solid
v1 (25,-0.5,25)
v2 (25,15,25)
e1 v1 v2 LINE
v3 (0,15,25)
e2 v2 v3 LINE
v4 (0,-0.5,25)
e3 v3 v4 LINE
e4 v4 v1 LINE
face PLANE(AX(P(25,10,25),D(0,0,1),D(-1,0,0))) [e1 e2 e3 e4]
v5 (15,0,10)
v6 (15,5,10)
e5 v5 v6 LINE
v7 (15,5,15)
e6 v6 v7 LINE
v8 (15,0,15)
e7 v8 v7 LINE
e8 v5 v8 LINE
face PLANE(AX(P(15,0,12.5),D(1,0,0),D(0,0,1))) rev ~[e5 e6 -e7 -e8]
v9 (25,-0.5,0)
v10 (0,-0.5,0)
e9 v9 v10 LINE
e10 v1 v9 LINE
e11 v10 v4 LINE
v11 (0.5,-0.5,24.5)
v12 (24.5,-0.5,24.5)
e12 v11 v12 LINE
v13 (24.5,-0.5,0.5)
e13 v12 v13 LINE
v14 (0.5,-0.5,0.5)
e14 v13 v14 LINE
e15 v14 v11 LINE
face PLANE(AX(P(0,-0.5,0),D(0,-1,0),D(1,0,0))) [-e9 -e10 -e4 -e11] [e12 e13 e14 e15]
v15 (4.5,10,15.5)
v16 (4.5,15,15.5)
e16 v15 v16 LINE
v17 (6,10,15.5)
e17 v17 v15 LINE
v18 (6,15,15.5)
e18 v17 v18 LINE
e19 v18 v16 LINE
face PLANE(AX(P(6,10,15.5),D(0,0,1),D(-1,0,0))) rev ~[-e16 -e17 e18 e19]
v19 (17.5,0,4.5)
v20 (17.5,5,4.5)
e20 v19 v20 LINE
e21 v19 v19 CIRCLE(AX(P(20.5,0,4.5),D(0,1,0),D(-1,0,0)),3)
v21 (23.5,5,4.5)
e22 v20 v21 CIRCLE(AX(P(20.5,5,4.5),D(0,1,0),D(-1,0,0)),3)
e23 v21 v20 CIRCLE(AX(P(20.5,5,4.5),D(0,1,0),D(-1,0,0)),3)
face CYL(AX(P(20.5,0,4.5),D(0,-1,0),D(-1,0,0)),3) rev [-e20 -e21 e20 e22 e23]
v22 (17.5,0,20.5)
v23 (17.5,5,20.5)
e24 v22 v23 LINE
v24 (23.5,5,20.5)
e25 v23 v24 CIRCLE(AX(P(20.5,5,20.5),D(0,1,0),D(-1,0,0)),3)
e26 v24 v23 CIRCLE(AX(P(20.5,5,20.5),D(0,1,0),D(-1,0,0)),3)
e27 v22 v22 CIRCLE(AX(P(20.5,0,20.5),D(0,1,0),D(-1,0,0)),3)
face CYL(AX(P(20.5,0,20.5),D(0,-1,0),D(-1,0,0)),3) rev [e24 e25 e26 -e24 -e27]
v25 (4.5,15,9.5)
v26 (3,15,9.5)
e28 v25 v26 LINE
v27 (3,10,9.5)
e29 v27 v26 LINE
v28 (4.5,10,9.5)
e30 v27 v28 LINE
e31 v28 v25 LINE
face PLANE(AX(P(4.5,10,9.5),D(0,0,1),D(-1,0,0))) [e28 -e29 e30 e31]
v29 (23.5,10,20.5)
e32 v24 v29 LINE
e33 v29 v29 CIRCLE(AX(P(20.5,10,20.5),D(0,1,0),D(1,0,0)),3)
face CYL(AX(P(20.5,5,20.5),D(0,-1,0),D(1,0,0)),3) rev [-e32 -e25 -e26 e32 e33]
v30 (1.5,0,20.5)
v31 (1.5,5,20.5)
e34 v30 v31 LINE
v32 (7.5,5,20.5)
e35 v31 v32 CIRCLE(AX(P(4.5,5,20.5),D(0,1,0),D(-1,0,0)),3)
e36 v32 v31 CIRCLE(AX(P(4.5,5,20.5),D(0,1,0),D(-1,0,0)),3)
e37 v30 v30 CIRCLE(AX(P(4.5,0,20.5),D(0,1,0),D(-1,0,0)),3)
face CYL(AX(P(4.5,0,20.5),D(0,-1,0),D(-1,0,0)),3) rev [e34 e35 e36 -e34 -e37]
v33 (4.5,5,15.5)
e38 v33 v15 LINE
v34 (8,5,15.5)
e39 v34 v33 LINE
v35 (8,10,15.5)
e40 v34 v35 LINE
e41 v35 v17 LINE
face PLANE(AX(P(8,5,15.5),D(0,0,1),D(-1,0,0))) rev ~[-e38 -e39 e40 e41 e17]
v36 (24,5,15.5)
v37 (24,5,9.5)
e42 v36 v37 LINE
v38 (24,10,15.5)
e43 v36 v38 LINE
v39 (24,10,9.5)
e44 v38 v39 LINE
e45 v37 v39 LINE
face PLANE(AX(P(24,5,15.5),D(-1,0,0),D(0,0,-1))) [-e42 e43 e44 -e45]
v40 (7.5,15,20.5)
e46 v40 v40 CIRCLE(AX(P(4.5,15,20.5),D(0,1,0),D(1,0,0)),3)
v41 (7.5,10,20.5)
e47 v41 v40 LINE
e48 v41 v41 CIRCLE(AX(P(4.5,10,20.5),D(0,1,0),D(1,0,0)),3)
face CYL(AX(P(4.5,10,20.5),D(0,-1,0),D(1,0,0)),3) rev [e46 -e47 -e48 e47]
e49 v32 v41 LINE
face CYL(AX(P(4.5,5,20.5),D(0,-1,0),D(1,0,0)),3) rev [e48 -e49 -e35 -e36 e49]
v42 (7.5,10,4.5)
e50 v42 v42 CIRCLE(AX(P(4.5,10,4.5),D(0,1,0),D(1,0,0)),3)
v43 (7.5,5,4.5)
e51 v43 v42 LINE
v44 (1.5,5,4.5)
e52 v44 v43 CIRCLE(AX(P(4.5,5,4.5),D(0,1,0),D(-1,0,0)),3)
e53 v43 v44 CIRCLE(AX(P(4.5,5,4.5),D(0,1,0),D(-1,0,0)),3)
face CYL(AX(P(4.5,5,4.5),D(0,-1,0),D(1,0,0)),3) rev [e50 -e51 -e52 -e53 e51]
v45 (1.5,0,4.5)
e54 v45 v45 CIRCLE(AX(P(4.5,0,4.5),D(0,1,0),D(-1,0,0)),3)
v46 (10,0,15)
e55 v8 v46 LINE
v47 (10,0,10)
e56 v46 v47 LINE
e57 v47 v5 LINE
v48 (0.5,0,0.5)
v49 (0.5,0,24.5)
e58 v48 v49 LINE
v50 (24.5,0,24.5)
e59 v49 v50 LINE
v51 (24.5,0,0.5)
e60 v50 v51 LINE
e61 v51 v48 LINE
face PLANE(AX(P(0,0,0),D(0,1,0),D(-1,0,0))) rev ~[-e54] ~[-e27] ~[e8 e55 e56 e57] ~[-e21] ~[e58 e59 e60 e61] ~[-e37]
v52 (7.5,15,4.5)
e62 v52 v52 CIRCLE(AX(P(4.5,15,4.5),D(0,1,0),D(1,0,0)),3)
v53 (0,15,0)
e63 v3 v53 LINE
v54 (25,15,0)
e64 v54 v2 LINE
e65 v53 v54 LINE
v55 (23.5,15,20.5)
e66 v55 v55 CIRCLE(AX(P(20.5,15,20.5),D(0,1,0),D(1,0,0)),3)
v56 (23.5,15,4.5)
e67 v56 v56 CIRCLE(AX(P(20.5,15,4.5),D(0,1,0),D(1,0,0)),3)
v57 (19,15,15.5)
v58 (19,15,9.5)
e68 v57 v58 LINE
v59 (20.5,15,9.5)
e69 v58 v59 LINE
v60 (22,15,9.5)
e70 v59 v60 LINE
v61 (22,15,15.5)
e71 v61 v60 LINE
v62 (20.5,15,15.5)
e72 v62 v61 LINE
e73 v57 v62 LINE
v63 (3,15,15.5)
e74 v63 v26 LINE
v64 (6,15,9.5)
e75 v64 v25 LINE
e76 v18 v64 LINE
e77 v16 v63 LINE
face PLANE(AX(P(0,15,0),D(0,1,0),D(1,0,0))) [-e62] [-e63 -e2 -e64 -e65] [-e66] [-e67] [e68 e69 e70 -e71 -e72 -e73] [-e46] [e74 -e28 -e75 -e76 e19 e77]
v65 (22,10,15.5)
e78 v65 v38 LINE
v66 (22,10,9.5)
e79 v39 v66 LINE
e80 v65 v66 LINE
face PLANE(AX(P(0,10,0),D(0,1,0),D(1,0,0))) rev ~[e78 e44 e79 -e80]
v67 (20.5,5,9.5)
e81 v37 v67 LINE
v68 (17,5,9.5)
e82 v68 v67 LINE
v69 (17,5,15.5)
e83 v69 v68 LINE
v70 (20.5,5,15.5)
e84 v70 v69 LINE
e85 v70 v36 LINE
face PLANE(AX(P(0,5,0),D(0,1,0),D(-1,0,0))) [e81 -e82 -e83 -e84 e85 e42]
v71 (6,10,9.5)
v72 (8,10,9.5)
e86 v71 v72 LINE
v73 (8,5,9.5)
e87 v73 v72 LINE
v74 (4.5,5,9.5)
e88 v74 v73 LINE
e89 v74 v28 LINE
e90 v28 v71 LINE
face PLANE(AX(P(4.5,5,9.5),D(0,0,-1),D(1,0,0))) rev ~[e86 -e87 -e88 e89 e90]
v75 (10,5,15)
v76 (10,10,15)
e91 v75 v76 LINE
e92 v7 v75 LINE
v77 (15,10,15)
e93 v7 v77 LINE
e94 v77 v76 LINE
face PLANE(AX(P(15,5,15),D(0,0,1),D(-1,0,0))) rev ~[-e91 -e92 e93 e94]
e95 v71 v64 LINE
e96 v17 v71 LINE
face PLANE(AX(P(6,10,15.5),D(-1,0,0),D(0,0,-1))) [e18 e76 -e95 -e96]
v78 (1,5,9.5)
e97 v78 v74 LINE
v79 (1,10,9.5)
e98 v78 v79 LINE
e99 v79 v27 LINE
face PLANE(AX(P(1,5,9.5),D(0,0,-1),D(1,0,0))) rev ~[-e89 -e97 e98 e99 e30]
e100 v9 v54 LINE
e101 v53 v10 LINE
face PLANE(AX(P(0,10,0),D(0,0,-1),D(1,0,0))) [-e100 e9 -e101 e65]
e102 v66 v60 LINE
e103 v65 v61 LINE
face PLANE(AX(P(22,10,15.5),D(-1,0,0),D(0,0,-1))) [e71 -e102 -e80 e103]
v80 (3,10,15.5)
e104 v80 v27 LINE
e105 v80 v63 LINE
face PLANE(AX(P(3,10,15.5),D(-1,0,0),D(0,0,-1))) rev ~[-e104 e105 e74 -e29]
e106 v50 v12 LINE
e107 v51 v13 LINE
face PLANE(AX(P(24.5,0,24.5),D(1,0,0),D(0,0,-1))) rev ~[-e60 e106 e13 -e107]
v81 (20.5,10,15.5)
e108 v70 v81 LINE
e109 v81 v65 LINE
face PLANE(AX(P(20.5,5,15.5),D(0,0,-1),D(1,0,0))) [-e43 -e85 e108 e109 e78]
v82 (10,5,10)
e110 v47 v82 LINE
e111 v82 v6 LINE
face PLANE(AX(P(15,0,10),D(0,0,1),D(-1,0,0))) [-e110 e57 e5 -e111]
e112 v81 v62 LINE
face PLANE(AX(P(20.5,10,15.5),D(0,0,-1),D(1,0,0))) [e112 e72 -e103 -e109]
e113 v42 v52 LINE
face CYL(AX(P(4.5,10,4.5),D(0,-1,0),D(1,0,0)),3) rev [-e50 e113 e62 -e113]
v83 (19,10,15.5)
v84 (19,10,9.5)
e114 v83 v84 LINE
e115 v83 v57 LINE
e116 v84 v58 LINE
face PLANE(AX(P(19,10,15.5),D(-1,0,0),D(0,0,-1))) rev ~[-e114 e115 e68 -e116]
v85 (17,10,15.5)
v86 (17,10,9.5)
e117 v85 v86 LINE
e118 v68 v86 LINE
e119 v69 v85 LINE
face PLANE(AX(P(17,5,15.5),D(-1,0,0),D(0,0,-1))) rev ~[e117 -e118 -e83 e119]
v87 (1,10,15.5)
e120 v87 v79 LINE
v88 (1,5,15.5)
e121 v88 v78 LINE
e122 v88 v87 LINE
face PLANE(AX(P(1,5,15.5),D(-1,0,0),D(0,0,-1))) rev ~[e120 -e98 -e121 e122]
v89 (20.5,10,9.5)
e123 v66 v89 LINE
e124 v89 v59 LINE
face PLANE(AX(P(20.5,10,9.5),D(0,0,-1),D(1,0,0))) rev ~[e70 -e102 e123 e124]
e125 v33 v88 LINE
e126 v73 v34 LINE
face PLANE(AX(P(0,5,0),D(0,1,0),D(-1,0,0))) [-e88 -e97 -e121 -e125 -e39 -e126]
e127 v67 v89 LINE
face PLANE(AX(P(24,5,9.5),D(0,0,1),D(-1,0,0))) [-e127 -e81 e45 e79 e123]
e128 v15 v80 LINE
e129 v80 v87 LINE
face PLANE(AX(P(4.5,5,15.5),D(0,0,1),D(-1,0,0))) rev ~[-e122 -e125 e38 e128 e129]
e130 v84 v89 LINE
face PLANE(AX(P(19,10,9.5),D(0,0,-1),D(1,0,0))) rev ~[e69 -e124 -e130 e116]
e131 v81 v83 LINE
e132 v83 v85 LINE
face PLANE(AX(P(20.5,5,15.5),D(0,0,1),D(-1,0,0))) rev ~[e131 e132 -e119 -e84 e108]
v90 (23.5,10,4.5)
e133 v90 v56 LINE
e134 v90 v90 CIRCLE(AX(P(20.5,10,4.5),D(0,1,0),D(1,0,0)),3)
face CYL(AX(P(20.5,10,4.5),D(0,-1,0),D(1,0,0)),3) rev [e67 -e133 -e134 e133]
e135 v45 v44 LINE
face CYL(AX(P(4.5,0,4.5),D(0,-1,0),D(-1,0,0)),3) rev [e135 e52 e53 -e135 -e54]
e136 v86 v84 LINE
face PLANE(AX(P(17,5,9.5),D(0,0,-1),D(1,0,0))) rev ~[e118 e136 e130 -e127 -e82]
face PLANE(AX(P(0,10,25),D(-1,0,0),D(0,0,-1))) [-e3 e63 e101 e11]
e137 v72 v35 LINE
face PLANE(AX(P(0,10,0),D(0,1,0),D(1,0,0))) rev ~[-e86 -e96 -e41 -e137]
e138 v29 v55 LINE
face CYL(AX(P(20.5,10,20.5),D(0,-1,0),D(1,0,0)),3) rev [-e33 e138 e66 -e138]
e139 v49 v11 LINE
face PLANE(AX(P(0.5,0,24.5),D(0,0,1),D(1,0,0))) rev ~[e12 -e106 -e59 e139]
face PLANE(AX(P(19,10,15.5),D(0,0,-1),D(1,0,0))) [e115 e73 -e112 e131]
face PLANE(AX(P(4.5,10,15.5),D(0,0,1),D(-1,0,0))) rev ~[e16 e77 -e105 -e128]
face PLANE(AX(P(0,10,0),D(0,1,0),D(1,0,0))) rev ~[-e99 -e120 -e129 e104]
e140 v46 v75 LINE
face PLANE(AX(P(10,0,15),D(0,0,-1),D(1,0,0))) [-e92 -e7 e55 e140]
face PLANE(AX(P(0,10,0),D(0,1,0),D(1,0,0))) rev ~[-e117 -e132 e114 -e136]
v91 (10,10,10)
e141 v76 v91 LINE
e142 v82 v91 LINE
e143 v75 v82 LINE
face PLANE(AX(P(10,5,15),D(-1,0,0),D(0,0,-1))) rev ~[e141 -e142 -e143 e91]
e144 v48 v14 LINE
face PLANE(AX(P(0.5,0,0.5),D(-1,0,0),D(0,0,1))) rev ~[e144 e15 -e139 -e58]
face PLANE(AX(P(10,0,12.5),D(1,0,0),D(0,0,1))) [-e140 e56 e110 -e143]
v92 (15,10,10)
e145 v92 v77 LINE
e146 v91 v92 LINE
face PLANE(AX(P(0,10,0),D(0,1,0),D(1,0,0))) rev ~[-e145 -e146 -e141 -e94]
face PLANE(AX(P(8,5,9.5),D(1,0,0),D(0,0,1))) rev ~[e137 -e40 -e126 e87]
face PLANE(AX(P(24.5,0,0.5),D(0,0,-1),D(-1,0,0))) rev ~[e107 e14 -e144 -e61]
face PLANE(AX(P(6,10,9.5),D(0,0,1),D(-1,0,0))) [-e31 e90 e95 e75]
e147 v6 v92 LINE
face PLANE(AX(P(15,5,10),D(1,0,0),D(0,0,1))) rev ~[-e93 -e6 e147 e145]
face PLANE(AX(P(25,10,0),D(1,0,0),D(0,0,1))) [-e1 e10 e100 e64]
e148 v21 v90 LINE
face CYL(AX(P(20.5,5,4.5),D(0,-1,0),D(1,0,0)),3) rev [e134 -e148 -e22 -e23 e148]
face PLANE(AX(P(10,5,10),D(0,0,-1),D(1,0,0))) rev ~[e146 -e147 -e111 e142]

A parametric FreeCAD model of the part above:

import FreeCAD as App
import Part
import Sketcher
from FreeCAD import Vector


def add_polygon(sketch, points):
    """Adds a closed chain of lines whose ends are joined by coincident constraints."""
    first, n = sketch.GeometryCount, len(points)
    for a, b in zip(points, points[1:] + points[:1]):
        sketch.addGeometry(Part.LineSegment(App.Vector(*a, 0), App.Vector(*b, 0)), False)
    for i in range(n):
        sketch.addConstraint(Sketcher.Constraint("Coincident", first + i, 2, first + (i + 1) % n, 1))

doc = App.newDocument("Part")
body = doc.addObject("PartDesign::Body", "Body")

# Sketch on XZ plane
sketch1 = doc.addObject("Sketcher::SketchObject", "Sketch")
body.addObject(sketch1)
sketch1.AttachmentSupport = (doc.XZ_Plane, [""])
sketch1.MapMode = "FlatFace"
add_polygon(sketch1, [(25, 0), (0, 0), (0, 25), (25, 25)])  # lines 0-3
sketch1.addGeometry(Part.Circle(Vector(20.5, 4.5, 0), Vector(0, 0, 1), 3), False)  # 4
sketch1.addGeometry(Part.Circle(Vector(4.5, 4.5, 0), Vector(0, 0, 1), 3), False)  # 5
sketch1.addGeometry(Part.Circle(Vector(20.5, 20.5, 0), Vector(0, 0, 1), 3), False)  # 6
add_polygon(sketch1, [(10, 15), (10, 10), (15, 10), (15, 15)])  # lines 7-10
sketch1.addGeometry(Part.Circle(Vector(4.5, 20.5, 0), Vector(0, 0, 1), 3), False)  # 11
sketch1.addConstraint(Sketcher.Constraint("Horizontal", 0))
sketch1.addConstraint(Sketcher.Constraint("Vertical", 1))
sketch1.addConstraint(Sketcher.Constraint("Horizontal", 2))
sketch1.addConstraint(Sketcher.Constraint("Vertical", 3))
sketch1.addConstraint(Sketcher.Constraint("Vertical", 7))
sketch1.addConstraint(Sketcher.Constraint("Horizontal", 8))
sketch1.addConstraint(Sketcher.Constraint("Vertical", 9))
sketch1.addConstraint(Sketcher.Constraint("Horizontal", 10))
sketch1.addConstraint(Sketcher.Constraint("Coincident", 0, 2, -1, 1))
sketch1.addConstraint(Sketcher.Constraint("Equal", 4, 5))
sketch1.addConstraint(Sketcher.Constraint("Equal", 5, 6))
sketch1.addConstraint(Sketcher.Constraint("Equal", 6, 11))
sketch1.addConstraint(Sketcher.Constraint("Horizontal", 4, 3, 5, 3))
sketch1.addConstraint(Sketcher.Constraint("Horizontal", 6, 3, 11, 3))
sketch1.addConstraint(Sketcher.Constraint("Vertical", 4, 3, 6, 3))
sketch1.addConstraint(Sketcher.Constraint("Vertical", 5, 3, 11, 3))
sketch1.addConstraint(Sketcher.Constraint("Equal", 2, 1))
sketch1.addConstraint(Sketcher.Constraint("Equal", 10, 7))
sketch1.addConstraint(Sketcher.Constraint("Diameter", 4, 6.0))
sketch1.addConstraint(Sketcher.Constraint("DistanceX", 0, 2, 0, 1, 25.0))
sketch1.addConstraint(Sketcher.Constraint("DistanceX", 8, 1, 8, 2, 5.0))
sketch1.addConstraint(Sketcher.Constraint("DistanceX", -1, 1, 7, 2, 10.0))
sketch1.addConstraint(Sketcher.Constraint("DistanceY", -1, 1, 7, 2, 10.0))
sketch1.addConstraint(Sketcher.Constraint("DistanceX", 5, 3, 4, 3, 16.0))
sketch1.addConstraint(Sketcher.Constraint("DistanceY", 4, 3, 6, 3, 16.0))
sketch1.addConstraint(Sketcher.Constraint("DistanceX", -1, 1, 4, 3, 20.5))
sketch1.addConstraint(Sketcher.Constraint("DistanceY", -1, 1, 4, 3, 4.5))
pad1 = doc.addObject("PartDesign::Pad", "Pad")
body.addObject(pad1)
pad1.Profile = sketch1
pad1.Length = 5
pad1.Reversed = True

# Sketch on XZ plane
sketch2 = doc.addObject("Sketcher::SketchObject", "Sketch001")
body.addObject(sketch2)
sketch2.AttachmentSupport = (doc.XZ_Plane, [""])
sketch2.MapMode = "FlatFace"
add_polygon(sketch2, [(0, 25), (0, 0), (25, 0), (25, 25)])  # lines 0-3
add_polygon(sketch2, [(0, 0), (0, 24), (24, 24), (24, 0)])  # lines 4-7
sketch2.addConstraint(Sketcher.Constraint("Vertical", 0))
sketch2.addConstraint(Sketcher.Constraint("Horizontal", 1))
sketch2.addConstraint(Sketcher.Constraint("Vertical", 2))
sketch2.addConstraint(Sketcher.Constraint("Horizontal", 3))
sketch2.addConstraint(Sketcher.Constraint("Vertical", 4))
sketch2.addConstraint(Sketcher.Constraint("Horizontal", 5))
sketch2.addConstraint(Sketcher.Constraint("Vertical", 6))
sketch2.addConstraint(Sketcher.Constraint("Horizontal", 7))
sketch2.addConstraint(Sketcher.Constraint("Coincident", 0, 2, -1, 1))
sketch2.addConstraint(Sketcher.Constraint("Equal", 3, 0))
sketch2.addConstraint(Sketcher.Constraint("Equal", 7, 4))
sketch2.addConstraint(Sketcher.Constraint("DistanceX", 5, 1, 5, 2, 24.0))
sketch2.addConstraint(Sketcher.Constraint("DistanceX", 1, 1, 1, 2, 25.0))
sketch2.addConstraint(Sketcher.Constraint("DistanceX", -1, 1, 4, 2, 0.5))
sketch2.addConstraint(Sketcher.Constraint("DistanceY", -1, 1, 4, 2, 24.5))
pad2 = doc.addObject("PartDesign::Pad", "Pad001")
body.addObject(pad2)
pad2.Profile = sketch2
pad2.Length = 0.5

# Sketch on XZ plane
sketch3 = doc.addObject("Sketcher::SketchObject", "Sketch002")
body.addObject(sketch3)
sketch3.AttachmentSupport = (doc.XZ_Plane, [""])
sketch3.MapMode = "FlatFace"
sketch3.AttachmentOffset = App.Placement(Vector(0, 0, -5), App.Rotation())
add_polygon(sketch3, [(0, 25), (25, 25), (25, 0), (0, 0)])  # lines 0-3
sketch3.addGeometry(Part.Circle(Vector(4.5, 20.5, 0), Vector(0, 0, 1), 3), False)  # 4
sketch3.addGeometry(Part.Circle(Vector(20.5, 20.5, 0), Vector(0, 0, 1), 3), False)  # 5
add_polygon(sketch3, [(8, 9.5), (8, 15.5), (1, 15.5), (1, 9.5)])  # lines 6-9
sketch3.addGeometry(Part.Circle(Vector(4.5, 4.5, 0), Vector(0, 0, 1), 3), False)  # 10
add_polygon(sketch3, [(15, 10), (15, 15), (10, 15), (10, 10)])  # lines 11-14
add_polygon(sketch3, [(24, 15.5), (17, 15.5), (17, 9.5), (24, 9.5)])  # lines 15-18
sketch3.addGeometry(Part.Circle(Vector(20.5, 4.5, 0), Vector(0, 0, 1), 3), False)  # 19
sketch3.addConstraint(Sketcher.Constraint("Horizontal", 0))
sketch3.addConstraint(Sketcher.Constraint("Vertical", 1))
sketch3.addConstraint(Sketcher.Constraint("Horizontal", 2))
sketch3.addConstraint(Sketcher.Constraint("Vertical", 3))
sketch3.addConstraint(Sketcher.Constraint("Vertical", 6))
sketch3.addConstraint(Sketcher.Constraint("Horizontal", 7))
sketch3.addConstraint(Sketcher.Constraint("Vertical", 8))
sketch3.addConstraint(Sketcher.Constraint("Horizontal", 9))
sketch3.addConstraint(Sketcher.Constraint("Vertical", 11))
sketch3.addConstraint(Sketcher.Constraint("Horizontal", 12))
sketch3.addConstraint(Sketcher.Constraint("Vertical", 13))
sketch3.addConstraint(Sketcher.Constraint("Horizontal", 14))
sketch3.addConstraint(Sketcher.Constraint("Horizontal", 15))
sketch3.addConstraint(Sketcher.Constraint("Vertical", 16))
sketch3.addConstraint(Sketcher.Constraint("Horizontal", 17))
sketch3.addConstraint(Sketcher.Constraint("Vertical", 18))
sketch3.addConstraint(Sketcher.Constraint("Coincident", 2, 2, -1, 1))
sketch3.addConstraint(Sketcher.Constraint("Equal", 4, 5))
sketch3.addConstraint(Sketcher.Constraint("Equal", 5, 10))
sketch3.addConstraint(Sketcher.Constraint("Equal", 10, 19))
sketch3.addConstraint(Sketcher.Constraint("Horizontal", 4, 3, 5, 3))
sketch3.addConstraint(Sketcher.Constraint("Horizontal", 10, 3, 19, 3))
sketch3.addConstraint(Sketcher.Constraint("Horizontal", 7, 2, 15, 2))
sketch3.addConstraint(Sketcher.Constraint("Horizontal", 9, 2, 16, 2))
sketch3.addConstraint(Sketcher.Constraint("Vertical", 4, 3, 10, 3))
sketch3.addConstraint(Sketcher.Constraint("Vertical", 5, 3, 19, 3))
sketch3.addConstraint(Sketcher.Constraint("Equal", 9, 15))
sketch3.addConstraint(Sketcher.Constraint("Equal", 2, 1))
sketch3.addConstraint(Sketcher.Constraint("Equal", 14, 11))
sketch3.addConstraint(Sketcher.Constraint("Diameter", 4, 6.0))
sketch3.addConstraint(Sketcher.Constraint("DistanceY", 6, 1, 6, 2, 6.0))
sketch3.addConstraint(Sketcher.Constraint("DistanceX", 4, 3, 6, 2, 3.5))
sketch3.addConstraint(Sketcher.Constraint("DistanceX", 7, 2, 4, 3, 3.5))
sketch3.addConstraint(Sketcher.Constraint("DistanceX", 15, 2, 5, 3, 3.5))
sketch3.addConstraint(Sketcher.Constraint("DistanceX", 0, 1, 0, 2, 25.0))
sketch3.addConstraint(Sketcher.Constraint("DistanceX", 12, 2, 12, 1, 5.0))
sketch3.addConstraint(Sketcher.Constraint("DistanceX", -1, 1, 6, 2, 8.0))
sketch3.addConstraint(Sketcher.Constraint("DistanceX", -1, 1, 11, 2, 15.0))
sketch3.addConstraint(Sketcher.Constraint("DistanceY", -1, 1, 11, 2, 15.0))
sketch3.addConstraint(Sketcher.Constraint("DistanceX", -1, 1, 15, 2, 17.0))
sketch3.addConstraint(Sketcher.Constraint("DistanceY", 10, 3, 4, 3, 16.0))
sketch3.addConstraint(Sketcher.Constraint("DistanceY", 6, 2, 4, 3, 5.0))
sketch3.addConstraint(Sketcher.Constraint("DistanceY", -1, 1, 4, 3, 20.5))
pad3 = doc.addObject("PartDesign::Pad", "Pad002")
body.addObject(pad3)
pad3.Profile = sketch3
pad3.Length = 5
pad3.Reversed = True

# Sketch on XZ plane
sketch4 = doc.addObject("Sketcher::SketchObject", "Sketch003")
body.addObject(sketch4)
sketch4.AttachmentSupport = (doc.XZ_Plane, [""])
sketch4.MapMode = "FlatFace"
sketch4.AttachmentOffset = App.Placement(Vector(0, 0, -10), App.Rotation())
add_polygon(sketch4, [(0, 25), (25, 25), (25, 0), (0, 0)])  # lines 0-3
sketch4.addGeometry(Part.Circle(Vector(4.5, 20.5, 0), Vector(0, 0, 1), 3), False)  # 4
sketch4.addGeometry(Part.Circle(Vector(20.5, 20.5, 0), Vector(0, 0, 1), 3), False)  # 5
add_polygon(sketch4, [(6, 9.5), (6, 15.5), (3, 15.5), (3, 9.5)])  # lines 6-9
sketch4.addGeometry(Part.Circle(Vector(4.5, 4.5, 0), Vector(0, 0, 1), 3), False)  # 10
add_polygon(sketch4, [(22, 15.5), (19, 15.5), (19, 9.5), (22, 9.5)])  # lines 11-14
sketch4.addGeometry(Part.Circle(Vector(20.5, 4.5, 0), Vector(0, 0, 1), 3), False)  # 15
sketch4.addConstraint(Sketcher.Constraint("Horizontal", 0))
sketch4.addConstraint(Sketcher.Constraint("Vertical", 1))
sketch4.addConstraint(Sketcher.Constraint("Horizontal", 2))
sketch4.addConstraint(Sketcher.Constraint("Vertical", 3))
sketch4.addConstraint(Sketcher.Constraint("Vertical", 6))
sketch4.addConstraint(Sketcher.Constraint("Horizontal", 7))
sketch4.addConstraint(Sketcher.Constraint("Vertical", 8))
sketch4.addConstraint(Sketcher.Constraint("Horizontal", 9))
sketch4.addConstraint(Sketcher.Constraint("Horizontal", 11))
sketch4.addConstraint(Sketcher.Constraint("Vertical", 12))
sketch4.addConstraint(Sketcher.Constraint("Horizontal", 13))
sketch4.addConstraint(Sketcher.Constraint("Vertical", 14))
sketch4.addConstraint(Sketcher.Constraint("Coincident", 2, 2, -1, 1))
sketch4.addConstraint(Sketcher.Constraint("Equal", 4, 5))
sketch4.addConstraint(Sketcher.Constraint("Equal", 5, 10))
sketch4.addConstraint(Sketcher.Constraint("Equal", 10, 15))
sketch4.addConstraint(Sketcher.Constraint("Horizontal", 4, 3, 5, 3))
sketch4.addConstraint(Sketcher.Constraint("Horizontal", 10, 3, 15, 3))
sketch4.addConstraint(Sketcher.Constraint("Horizontal", 7, 2, 11, 2))
sketch4.addConstraint(Sketcher.Constraint("Horizontal", 9, 2, 12, 2))
sketch4.addConstraint(Sketcher.Constraint("Vertical", 4, 3, 10, 3))
sketch4.addConstraint(Sketcher.Constraint("Vertical", 5, 3, 15, 3))
sketch4.addConstraint(Sketcher.Constraint("Equal", 9, 11))
sketch4.addConstraint(Sketcher.Constraint("Equal", 2, 1))
sketch4.addConstraint(Sketcher.Constraint("Diameter", 4, 6.0))
sketch4.addConstraint(Sketcher.Constraint("DistanceY", 6, 1, 6, 2, 6.0))
sketch4.addConstraint(Sketcher.Constraint("DistanceX", -1, 1, 6, 2, 6.0))
sketch4.addConstraint(Sketcher.Constraint("DistanceX", 11, 2, 0, 2, 6.0))
sketch4.addConstraint(Sketcher.Constraint("DistanceX", 4, 3, 6, 2, 1.5))
sketch4.addConstraint(Sketcher.Constraint("DistanceX", 7, 2, 4, 3, 1.5))
sketch4.addConstraint(Sketcher.Constraint("DistanceX", 11, 2, 5, 3, 1.5))
sketch4.addConstraint(Sketcher.Constraint("DistanceX", 0, 1, 0, 2, 25.0))
sketch4.addConstraint(Sketcher.Constraint("DistanceY", 10, 3, 4, 3, 16.0))
sketch4.addConstraint(Sketcher.Constraint("DistanceY", 6, 2, 4, 3, 5.0))
sketch4.addConstraint(Sketcher.Constraint("DistanceY", -1, 1, 4, 3, 20.5))
pad4 = doc.addObject("PartDesign::Pad", "Pad003")
body.addObject(pad4)
pad4.Profile = sketch4
pad4.Length = 5
pad4.Reversed = True

doc.recompute()
